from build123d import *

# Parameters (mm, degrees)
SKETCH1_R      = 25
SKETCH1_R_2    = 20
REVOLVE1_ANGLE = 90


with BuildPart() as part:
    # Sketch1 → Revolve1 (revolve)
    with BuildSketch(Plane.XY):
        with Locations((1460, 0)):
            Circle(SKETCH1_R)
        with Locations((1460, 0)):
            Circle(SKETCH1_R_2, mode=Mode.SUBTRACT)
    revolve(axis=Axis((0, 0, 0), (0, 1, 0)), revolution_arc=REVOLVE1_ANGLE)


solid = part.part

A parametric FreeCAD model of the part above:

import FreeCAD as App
import Part
import Sketcher
from FreeCAD import Vector

doc = App.newDocument("Part")
params = doc.addObject("Spreadsheet::Sheet", "Params")
for row, (alias, value) in enumerate([
    ("sketch1_diameter", "50 mm"),
    ("sketch1_diameter2", "40 mm"),
    ("revolution_angle", "90 deg"),
], start=1):
    params.set(f"A{row}", alias)
    params.set(f"B{row}", "=" + value)
    params.setAlias(f"B{row}", alias)

body = doc.addObject("PartDesign::Body", "Body")

sketch1 = body.newObject("Sketcher::SketchObject", "Sketch")
sketch1.AttachmentSupport = (doc.getObject("XY_Plane"), [""])
sketch1.MapMode = "FlatFace"
sketch1.addGeometry(Part.Circle(Vector(1460, 0, 0), Vector(0, 0, 1), 25), False)
sketch1.addGeometry(Part.Circle(Vector(1460, 0, 0), Vector(0, 0, 1), 20), False)
sketch1.addConstraint(Sketcher.Constraint("Coincident", 1, 3, 0, 3))
sketch1.addConstraint(Sketcher.Constraint("PointOnObject", 0, 3, -1))
sketch1.addConstraint(Sketcher.Constraint("Diameter", 0, 50.0))
sketch1.addConstraint(Sketcher.Constraint("Diameter", 1, 40.0))
sketch1.addConstraint(Sketcher.Constraint("DistanceX", -1, 1, 0, 3, 1460.0))
sketch1.setExpression("Constraints[2]", "Params.sketch1_diameter")
sketch1.setExpression("Constraints[3]", "Params.sketch1_diameter2")
revolution = body.newObject("PartDesign::Revolution", "Revolution")
revolution.Profile = sketch1
revolution.ReferenceAxis = (sketch1, ["V_Axis"])
revolution.setExpression("Angle", "Params.revolution_angle")

doc.recompute()
